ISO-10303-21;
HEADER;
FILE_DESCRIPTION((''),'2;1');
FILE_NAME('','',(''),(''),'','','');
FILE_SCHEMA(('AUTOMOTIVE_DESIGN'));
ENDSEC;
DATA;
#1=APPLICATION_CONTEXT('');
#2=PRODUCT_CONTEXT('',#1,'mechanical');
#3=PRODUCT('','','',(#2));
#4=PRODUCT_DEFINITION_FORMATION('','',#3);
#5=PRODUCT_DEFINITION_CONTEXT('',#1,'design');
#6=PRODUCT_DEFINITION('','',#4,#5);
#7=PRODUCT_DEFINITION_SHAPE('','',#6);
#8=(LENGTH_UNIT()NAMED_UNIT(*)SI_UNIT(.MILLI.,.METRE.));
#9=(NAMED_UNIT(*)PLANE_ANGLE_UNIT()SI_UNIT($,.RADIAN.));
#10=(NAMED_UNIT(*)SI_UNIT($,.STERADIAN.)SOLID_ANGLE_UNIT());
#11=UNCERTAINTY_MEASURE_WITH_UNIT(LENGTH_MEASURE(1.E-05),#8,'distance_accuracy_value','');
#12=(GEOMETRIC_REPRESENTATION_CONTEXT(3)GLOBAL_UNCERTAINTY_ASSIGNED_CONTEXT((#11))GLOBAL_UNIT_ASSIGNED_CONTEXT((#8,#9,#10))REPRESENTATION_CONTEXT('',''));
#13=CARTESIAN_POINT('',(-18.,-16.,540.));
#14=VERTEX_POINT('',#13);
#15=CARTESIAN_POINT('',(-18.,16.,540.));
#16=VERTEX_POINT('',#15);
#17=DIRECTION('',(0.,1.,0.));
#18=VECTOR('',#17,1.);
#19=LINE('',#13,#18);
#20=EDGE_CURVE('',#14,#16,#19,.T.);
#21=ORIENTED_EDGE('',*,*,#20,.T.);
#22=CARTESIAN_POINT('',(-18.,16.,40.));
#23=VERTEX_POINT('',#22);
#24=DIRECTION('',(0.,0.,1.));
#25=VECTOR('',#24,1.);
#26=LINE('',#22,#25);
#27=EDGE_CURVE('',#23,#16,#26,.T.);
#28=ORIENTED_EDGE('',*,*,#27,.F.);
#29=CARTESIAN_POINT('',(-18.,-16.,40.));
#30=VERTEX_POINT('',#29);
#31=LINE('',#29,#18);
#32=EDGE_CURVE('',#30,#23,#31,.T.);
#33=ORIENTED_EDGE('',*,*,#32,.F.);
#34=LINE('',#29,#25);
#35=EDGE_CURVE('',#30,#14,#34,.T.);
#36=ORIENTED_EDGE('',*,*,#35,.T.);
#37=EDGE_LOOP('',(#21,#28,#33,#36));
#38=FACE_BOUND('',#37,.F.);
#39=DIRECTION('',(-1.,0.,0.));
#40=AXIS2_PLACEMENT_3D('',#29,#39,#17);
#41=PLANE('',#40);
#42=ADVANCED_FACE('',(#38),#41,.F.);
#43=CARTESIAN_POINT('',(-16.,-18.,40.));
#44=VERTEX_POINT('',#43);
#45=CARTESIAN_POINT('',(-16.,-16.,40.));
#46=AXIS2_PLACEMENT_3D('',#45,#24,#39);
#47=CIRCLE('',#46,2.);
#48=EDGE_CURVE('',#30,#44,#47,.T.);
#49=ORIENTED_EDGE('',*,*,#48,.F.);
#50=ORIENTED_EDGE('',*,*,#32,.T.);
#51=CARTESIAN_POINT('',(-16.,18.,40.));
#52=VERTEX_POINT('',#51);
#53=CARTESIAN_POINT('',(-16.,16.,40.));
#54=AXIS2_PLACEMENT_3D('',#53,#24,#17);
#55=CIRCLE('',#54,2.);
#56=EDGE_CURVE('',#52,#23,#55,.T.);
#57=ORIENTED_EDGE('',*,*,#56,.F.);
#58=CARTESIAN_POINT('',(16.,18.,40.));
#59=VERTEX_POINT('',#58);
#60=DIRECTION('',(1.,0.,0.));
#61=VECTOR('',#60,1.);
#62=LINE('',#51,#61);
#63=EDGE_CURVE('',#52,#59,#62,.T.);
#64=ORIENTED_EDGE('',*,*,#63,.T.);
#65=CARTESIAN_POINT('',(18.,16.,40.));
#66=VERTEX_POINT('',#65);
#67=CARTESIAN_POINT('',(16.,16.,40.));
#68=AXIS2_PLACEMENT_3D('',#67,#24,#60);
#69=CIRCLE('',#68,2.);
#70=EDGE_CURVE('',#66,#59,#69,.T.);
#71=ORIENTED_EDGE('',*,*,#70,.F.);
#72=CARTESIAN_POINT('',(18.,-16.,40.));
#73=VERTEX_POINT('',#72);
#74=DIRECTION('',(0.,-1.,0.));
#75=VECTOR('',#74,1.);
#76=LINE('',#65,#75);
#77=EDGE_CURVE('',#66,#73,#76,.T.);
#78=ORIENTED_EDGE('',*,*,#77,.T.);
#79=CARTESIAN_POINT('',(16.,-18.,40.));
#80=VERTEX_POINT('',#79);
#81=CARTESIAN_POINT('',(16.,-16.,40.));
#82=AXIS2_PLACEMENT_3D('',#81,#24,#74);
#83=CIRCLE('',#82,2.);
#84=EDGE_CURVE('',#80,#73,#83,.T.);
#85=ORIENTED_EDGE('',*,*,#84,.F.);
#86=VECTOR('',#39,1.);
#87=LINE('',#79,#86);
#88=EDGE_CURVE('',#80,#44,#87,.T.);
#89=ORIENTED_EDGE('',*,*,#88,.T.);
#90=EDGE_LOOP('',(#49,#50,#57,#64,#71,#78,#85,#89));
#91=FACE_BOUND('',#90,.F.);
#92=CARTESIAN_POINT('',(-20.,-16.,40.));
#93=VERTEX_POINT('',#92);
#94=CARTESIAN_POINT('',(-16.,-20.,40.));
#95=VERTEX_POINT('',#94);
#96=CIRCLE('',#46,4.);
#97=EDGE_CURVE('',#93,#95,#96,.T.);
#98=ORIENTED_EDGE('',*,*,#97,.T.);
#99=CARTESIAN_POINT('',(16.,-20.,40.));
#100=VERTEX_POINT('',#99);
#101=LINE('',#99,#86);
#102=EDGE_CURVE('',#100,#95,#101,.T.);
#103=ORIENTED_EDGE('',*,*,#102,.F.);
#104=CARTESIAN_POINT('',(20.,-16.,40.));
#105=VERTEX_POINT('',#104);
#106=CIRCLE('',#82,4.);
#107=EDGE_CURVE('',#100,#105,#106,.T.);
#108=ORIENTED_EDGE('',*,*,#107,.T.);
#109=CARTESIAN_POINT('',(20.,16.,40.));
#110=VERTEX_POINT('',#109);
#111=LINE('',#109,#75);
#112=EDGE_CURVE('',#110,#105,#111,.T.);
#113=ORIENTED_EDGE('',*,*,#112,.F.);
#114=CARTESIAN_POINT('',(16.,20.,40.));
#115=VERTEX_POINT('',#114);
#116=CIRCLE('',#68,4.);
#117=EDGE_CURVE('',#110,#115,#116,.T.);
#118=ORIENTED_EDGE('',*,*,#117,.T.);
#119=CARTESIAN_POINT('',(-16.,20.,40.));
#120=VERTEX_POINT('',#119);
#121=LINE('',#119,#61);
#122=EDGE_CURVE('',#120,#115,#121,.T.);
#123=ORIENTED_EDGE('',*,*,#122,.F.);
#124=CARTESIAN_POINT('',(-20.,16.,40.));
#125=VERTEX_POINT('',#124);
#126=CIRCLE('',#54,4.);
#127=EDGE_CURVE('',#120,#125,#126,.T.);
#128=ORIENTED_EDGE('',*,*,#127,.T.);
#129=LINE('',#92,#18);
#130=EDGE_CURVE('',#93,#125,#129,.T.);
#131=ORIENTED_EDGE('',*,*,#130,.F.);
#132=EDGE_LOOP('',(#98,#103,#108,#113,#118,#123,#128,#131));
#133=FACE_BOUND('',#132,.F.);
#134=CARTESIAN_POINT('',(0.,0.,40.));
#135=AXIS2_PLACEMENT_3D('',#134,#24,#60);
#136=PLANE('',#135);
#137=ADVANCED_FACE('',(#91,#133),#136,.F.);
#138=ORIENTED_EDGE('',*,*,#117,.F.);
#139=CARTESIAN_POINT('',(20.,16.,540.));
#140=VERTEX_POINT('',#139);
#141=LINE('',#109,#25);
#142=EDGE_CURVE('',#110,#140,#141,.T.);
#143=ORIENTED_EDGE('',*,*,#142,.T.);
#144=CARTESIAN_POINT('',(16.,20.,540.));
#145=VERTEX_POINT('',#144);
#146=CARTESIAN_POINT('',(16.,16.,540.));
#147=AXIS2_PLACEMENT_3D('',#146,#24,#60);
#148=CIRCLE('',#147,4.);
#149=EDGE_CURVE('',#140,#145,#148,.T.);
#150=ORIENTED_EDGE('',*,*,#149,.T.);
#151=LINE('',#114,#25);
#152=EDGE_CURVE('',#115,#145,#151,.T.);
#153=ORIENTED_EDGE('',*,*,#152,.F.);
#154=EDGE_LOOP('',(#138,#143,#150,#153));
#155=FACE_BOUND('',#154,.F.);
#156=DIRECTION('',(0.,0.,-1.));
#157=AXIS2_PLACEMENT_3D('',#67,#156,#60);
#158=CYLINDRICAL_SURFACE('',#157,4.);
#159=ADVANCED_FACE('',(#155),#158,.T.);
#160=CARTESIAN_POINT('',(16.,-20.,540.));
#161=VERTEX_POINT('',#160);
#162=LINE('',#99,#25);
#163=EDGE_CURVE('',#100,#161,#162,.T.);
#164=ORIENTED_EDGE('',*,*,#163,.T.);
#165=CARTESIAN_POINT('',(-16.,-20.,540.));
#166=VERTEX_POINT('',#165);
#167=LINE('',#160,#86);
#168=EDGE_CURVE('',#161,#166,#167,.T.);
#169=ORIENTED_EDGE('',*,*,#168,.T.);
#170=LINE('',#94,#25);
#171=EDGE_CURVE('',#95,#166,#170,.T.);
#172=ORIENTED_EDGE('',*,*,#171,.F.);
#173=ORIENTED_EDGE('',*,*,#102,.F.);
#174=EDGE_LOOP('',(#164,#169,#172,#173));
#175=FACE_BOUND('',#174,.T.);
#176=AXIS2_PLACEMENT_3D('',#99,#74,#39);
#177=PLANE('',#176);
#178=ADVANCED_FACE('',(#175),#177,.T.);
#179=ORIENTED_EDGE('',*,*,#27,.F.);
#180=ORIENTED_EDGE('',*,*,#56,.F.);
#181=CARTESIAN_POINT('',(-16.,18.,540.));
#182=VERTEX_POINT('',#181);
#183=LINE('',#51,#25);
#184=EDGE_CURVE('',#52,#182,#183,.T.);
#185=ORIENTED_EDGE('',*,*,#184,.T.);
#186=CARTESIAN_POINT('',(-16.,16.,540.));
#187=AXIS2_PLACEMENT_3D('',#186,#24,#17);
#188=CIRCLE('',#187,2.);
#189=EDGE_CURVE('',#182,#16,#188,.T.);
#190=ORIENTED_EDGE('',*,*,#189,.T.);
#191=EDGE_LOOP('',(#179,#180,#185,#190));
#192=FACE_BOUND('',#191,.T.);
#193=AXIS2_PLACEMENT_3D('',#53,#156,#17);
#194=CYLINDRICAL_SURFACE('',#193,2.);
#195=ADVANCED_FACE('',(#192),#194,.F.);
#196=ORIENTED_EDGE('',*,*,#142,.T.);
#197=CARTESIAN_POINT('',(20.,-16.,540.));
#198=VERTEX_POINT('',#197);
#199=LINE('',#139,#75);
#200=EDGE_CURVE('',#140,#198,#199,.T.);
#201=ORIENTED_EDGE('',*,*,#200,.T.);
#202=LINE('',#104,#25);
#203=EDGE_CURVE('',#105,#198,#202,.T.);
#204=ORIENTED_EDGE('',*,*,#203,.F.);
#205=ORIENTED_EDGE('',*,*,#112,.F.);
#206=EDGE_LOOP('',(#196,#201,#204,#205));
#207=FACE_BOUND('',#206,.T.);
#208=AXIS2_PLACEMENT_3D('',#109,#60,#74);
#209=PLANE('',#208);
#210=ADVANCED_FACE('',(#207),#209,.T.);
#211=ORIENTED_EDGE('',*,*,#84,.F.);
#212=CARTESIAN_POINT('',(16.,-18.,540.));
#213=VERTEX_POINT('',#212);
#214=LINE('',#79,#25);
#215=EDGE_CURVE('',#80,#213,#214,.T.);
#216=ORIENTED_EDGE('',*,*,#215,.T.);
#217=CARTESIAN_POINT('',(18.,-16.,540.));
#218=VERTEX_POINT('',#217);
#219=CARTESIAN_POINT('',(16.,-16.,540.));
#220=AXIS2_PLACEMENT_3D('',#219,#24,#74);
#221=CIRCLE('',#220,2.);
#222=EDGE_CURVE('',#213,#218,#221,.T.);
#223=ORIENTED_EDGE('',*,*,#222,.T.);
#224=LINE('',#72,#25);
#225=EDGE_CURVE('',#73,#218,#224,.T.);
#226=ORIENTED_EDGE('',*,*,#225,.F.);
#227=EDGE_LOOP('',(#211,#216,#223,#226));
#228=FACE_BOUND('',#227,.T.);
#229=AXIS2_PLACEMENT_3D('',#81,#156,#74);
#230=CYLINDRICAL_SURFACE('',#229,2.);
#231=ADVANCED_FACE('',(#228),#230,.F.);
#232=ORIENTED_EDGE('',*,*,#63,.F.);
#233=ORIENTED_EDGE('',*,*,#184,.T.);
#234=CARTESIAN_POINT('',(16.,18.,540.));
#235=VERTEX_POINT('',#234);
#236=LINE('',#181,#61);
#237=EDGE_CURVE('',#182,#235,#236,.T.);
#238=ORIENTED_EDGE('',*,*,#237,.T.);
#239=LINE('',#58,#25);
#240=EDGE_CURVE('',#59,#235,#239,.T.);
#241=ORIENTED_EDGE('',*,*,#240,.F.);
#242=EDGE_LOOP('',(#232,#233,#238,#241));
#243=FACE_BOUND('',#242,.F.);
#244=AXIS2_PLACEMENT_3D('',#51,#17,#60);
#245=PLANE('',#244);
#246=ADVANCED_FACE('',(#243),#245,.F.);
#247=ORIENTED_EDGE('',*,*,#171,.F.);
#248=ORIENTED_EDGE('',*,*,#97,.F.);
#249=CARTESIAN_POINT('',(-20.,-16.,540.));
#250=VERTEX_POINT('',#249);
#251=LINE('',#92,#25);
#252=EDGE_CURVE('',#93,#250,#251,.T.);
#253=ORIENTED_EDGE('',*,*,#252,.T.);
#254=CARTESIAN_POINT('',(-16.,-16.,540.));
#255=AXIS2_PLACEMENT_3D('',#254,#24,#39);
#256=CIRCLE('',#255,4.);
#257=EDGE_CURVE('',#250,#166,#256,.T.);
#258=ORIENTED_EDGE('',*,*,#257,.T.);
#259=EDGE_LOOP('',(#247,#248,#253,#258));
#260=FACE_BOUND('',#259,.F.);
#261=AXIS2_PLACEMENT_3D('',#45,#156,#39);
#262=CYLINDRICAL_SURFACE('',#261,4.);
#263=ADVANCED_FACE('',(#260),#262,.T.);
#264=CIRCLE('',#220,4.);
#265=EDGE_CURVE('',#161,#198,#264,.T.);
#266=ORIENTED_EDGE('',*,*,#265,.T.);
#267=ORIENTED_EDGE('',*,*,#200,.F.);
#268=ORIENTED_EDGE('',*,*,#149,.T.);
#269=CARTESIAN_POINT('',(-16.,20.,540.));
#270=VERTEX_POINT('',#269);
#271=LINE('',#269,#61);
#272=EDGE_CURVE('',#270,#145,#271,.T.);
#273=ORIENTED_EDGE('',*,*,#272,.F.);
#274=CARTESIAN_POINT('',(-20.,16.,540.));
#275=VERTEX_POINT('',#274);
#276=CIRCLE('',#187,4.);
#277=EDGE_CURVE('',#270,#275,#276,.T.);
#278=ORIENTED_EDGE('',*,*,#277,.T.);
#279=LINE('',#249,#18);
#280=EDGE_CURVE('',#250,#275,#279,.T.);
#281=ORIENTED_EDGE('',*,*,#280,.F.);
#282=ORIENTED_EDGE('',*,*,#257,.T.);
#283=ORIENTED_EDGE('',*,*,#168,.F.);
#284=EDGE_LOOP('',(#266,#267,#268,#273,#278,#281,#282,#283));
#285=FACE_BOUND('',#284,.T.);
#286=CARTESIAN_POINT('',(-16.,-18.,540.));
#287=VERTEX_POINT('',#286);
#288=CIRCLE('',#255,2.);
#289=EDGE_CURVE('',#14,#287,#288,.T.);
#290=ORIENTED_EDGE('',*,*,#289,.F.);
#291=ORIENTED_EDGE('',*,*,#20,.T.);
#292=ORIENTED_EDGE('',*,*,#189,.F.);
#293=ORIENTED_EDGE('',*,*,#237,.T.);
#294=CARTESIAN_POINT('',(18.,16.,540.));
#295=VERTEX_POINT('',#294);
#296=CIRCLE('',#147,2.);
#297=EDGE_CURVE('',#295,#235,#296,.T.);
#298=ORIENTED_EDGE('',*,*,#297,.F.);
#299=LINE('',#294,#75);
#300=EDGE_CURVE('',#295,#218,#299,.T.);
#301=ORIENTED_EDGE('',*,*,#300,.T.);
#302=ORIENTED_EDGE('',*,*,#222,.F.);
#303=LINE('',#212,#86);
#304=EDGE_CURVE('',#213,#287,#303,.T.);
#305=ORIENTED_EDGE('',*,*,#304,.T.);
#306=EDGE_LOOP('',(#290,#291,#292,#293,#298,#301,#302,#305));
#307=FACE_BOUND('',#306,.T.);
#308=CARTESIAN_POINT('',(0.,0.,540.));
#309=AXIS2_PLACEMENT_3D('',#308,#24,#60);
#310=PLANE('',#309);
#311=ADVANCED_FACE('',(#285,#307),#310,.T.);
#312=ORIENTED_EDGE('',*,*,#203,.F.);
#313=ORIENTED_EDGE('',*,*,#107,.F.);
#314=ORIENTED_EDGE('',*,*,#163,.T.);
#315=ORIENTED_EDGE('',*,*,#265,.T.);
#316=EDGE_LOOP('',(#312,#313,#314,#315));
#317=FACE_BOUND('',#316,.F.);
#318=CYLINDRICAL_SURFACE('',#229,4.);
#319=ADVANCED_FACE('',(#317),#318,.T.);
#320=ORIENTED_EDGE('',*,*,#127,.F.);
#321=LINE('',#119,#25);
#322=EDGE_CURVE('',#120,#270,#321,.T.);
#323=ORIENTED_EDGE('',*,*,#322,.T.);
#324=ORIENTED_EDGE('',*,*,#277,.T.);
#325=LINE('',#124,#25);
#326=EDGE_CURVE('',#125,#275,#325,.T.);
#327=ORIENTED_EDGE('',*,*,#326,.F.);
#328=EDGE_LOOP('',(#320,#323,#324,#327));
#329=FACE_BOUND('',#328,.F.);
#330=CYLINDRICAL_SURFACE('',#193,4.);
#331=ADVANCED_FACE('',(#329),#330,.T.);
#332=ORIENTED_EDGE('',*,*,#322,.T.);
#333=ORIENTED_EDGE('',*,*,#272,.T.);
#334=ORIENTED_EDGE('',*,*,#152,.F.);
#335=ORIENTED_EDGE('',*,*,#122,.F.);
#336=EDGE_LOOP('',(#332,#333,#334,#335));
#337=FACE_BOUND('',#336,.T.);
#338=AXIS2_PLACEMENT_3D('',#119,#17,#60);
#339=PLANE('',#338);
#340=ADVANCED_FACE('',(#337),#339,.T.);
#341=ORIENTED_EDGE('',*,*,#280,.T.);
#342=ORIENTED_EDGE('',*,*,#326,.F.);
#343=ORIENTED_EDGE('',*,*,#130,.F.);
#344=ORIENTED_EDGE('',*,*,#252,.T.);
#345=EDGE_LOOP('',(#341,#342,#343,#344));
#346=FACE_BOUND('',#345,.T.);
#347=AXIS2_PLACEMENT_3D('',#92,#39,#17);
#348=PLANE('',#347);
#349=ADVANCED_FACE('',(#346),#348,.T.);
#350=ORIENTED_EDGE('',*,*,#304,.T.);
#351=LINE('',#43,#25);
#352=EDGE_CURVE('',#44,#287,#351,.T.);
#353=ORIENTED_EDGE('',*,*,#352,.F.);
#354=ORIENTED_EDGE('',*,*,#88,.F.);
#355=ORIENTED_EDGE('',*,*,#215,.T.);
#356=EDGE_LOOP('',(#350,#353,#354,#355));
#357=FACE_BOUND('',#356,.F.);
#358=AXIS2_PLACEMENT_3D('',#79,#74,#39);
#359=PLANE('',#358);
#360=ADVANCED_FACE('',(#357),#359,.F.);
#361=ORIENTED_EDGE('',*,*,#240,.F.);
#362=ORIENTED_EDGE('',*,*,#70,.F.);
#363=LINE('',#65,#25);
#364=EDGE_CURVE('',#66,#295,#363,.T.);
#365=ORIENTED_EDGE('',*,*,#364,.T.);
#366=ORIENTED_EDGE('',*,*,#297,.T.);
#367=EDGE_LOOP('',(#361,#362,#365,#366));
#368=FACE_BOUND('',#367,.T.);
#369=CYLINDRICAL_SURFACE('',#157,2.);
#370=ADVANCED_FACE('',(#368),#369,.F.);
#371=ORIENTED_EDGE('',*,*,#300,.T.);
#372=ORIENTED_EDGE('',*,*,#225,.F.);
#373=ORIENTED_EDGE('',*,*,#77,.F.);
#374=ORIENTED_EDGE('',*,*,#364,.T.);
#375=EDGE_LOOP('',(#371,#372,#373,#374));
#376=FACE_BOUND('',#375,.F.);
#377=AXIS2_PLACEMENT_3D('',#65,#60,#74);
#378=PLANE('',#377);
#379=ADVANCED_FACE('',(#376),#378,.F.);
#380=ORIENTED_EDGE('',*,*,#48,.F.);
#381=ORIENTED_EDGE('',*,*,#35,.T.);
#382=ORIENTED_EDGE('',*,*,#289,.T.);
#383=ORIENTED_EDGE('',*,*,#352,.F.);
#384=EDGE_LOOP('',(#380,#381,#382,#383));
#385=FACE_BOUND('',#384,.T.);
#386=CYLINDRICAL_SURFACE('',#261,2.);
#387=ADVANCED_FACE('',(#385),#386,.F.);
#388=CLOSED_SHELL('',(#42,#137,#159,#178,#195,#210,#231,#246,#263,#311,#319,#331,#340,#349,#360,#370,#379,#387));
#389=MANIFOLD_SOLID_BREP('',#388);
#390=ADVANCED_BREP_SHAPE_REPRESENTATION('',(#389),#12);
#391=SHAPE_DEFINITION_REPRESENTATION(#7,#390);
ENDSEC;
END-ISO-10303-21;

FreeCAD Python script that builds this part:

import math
import FreeCAD as App
import Part
import Sketcher
from FreeCAD import Vector
Q = App.Units.Quantity

doc = App.newDocument("Part")
params = doc.addObject("Spreadsheet::Sheet", "Params")
for row, (alias, value) in enumerate([
    ("sketch1_radius", "4 mm"),
    ("sketch1_radius2", "2 mm"),
    ("pad1_length", "500 mm"),
], start=1):
    params.set(f"A{row}", alias)
    params.set(f"B{row}", "=" + value)
    params.setAlias(f"B{row}", alias)

body = doc.addObject("PartDesign::Body", "Body")

# Sketch on XY plane
sketch1 = body.newObject("Sketcher::SketchObject", "Sketch")
sketch1.AttachmentSupport = (doc.getObject("XY_Plane"), [""])
sketch1.MapMode = "FlatFace"
sketch1.AttachmentOffset = App.Placement(Vector(0, 0, 40), App.Rotation())
sketch1.addGeometry(Part.LineSegment(Vector(-20, 16, 0), Vector(-20, -16, 0)), False)
sketch1.addGeometry(Part.ArcOfCircle(Part.Circle(Vector(-16, -16, 0), Vector(0, 0, 1), 4), math.radians(180), math.radians(270)), False)
sketch1.addGeometry(Part.LineSegment(Vector(-16, -20, 0), Vector(16, -20, 0)), False)
sketch1.addGeometry(Part.ArcOfCircle(Part.Circle(Vector(16, -16, 0), Vector(0, 0, 1), 4), math.radians(-90), math.radians(0)), False)
sketch1.addGeometry(Part.LineSegment(Vector(20, -16, 0), Vector(20, 16, 0)), False)
sketch1.addGeometry(Part.ArcOfCircle(Part.Circle(Vector(16, 16, 0), Vector(0, 0, 1), 4), math.radians(0), math.radians(90)), False)
sketch1.addGeometry(Part.LineSegment(Vector(16, 20, 0), Vector(-16, 20, 0)), False)
sketch1.addGeometry(Part.ArcOfCircle(Part.Circle(Vector(-16, 16, 0), Vector(0, 0, 1), 4), math.radians(90), math.radians(180)), False)
sketch1.addGeometry(Part.ArcOfCircle(Part.Circle(Vector(-16, 16, 0), Vector(0, 0, 1), 2), math.radians(90), math.radians(180)), False)
sketch1.addGeometry(Part.LineSegment(Vector(-16, 18, 0), Vector(16, 18, 0)), False)
sketch1.addGeometry(Part.ArcOfCircle(Part.Circle(Vector(16, 16, 0), Vector(0, 0, 1), 2), math.radians(0), math.radians(90)), False)
sketch1.addGeometry(Part.LineSegment(Vector(18, 16, 0), Vector(18, -16, 0)), False)
sketch1.addGeometry(Part.ArcOfCircle(Part.Circle(Vector(16, -16, 0), Vector(0, 0, 1), 2), math.radians(-90), math.radians(0)), False)
sketch1.addGeometry(Part.LineSegment(Vector(16, -18, 0), Vector(-16, -18, 0)), False)
sketch1.addGeometry(Part.ArcOfCircle(Part.Circle(Vector(-16, -16, 0), Vector(0, 0, 1), 2), math.radians(180), math.radians(270)), False)
sketch1.addGeometry(Part.LineSegment(Vector(-18, -16, 0), Vector(-18, 16, 0)), False)
sketch1.addConstraint(Sketcher.Constraint("Tangent", 0, 2, 1, 1))
sketch1.addConstraint(Sketcher.Constraint("Tangent", 1, 2, 2, 1))
sketch1.addConstraint(Sketcher.Constraint("Tangent", 2, 2, 3, 1))
sketch1.addConstraint(Sketcher.Constraint("Tangent", 3, 2, 4, 1))
sketch1.addConstraint(Sketcher.Constraint("Tangent", 4, 2, 5, 1))
sketch1.addConstraint(Sketcher.Constraint("Tangent", 5, 2, 6, 1))
sketch1.addConstraint(Sketcher.Constraint("Tangent", 6, 2, 7, 1))
sketch1.addConstraint(Sketcher.Constraint("Tangent", 7, 2, 0, 1))
sketch1.addConstraint(Sketcher.Constraint("Tangent", 8, 1, 9, 1))
sketch1.addConstraint(Sketcher.Constraint("Tangent", 9, 2, 10, 2))
sketch1.addConstraint(Sketcher.Constraint("Tangent", 10, 1, 11, 1))
sketch1.addConstraint(Sketcher.Constraint("Tangent", 11, 2, 12, 2))
sketch1.addConstraint(Sketcher.Constraint("Tangent", 12, 1, 13, 1))
sketch1.addConstraint(Sketcher.Constraint("Tangent", 13, 2, 14, 2))
sketch1.addConstraint(Sketcher.Constraint("Tangent", 14, 1, 15, 1))
sketch1.addConstraint(Sketcher.Constraint("Tangent", 15, 2, 8, 2))
sketch1.addConstraint(Sketcher.Constraint("Vertical", 0))
sketch1.addConstraint(Sketcher.Constraint("Horizontal", 2))
sketch1.addConstraint(Sketcher.Constraint("Vertical", 4))
sketch1.addConstraint(Sketcher.Constraint("Horizontal", 6))
sketch1.addConstraint(Sketcher.Constraint("Horizontal", 9))
sketch1.addConstraint(Sketcher.Constraint("Vertical", 11))
sketch1.addConstraint(Sketcher.Constraint("Horizontal", 13))
sketch1.addConstraint(Sketcher.Constraint("Vertical", 15))
sketch1.addConstraint(Sketcher.Constraint("Coincident", 8, 3, 7, 3))
sketch1.addConstraint(Sketcher.Constraint("Coincident", 10, 3, 5, 3))
sketch1.addConstraint(Sketcher.Constraint("Coincident", 12, 3, 3, 3))
sketch1.addConstraint(Sketcher.Constraint("Equal", 1, 3))
sketch1.addConstraint(Sketcher.Constraint("Equal", 3, 5))
sketch1.addConstraint(Sketcher.Constraint("Equal", 5, 7))
sketch1.addConstraint(Sketcher.Constraint("Equal", 12, 14))
sketch1.addConstraint(Sketcher.Constraint("Symmetric", 1, 3, 5, 3, -1, 1))
sketch1.addConstraint(Sketcher.Constraint("Equal", 13, 0))
sketch1.addConstraint(Sketcher.Constraint("Radius", 1, Q("4 mm")))
sketch1.addConstraint(Sketcher.Constraint("Radius", 8, Q("2 mm")))
sketch1.addConstraint(Sketcher.Constraint("DistanceX", 0, 2, -1, 1, Q("20 mm")))
sketch1.setExpression("Constraints[33]", "Params.sketch1_radius")
sketch1.setExpression("Constraints[34]", "Params.sketch1_radius2")
pad1 = body.newObject("PartDesign::Pad", "Pad")
pad1.Profile = sketch1
pad1.setExpression("Length", "Params.pad1_length")

doc.recompute()
